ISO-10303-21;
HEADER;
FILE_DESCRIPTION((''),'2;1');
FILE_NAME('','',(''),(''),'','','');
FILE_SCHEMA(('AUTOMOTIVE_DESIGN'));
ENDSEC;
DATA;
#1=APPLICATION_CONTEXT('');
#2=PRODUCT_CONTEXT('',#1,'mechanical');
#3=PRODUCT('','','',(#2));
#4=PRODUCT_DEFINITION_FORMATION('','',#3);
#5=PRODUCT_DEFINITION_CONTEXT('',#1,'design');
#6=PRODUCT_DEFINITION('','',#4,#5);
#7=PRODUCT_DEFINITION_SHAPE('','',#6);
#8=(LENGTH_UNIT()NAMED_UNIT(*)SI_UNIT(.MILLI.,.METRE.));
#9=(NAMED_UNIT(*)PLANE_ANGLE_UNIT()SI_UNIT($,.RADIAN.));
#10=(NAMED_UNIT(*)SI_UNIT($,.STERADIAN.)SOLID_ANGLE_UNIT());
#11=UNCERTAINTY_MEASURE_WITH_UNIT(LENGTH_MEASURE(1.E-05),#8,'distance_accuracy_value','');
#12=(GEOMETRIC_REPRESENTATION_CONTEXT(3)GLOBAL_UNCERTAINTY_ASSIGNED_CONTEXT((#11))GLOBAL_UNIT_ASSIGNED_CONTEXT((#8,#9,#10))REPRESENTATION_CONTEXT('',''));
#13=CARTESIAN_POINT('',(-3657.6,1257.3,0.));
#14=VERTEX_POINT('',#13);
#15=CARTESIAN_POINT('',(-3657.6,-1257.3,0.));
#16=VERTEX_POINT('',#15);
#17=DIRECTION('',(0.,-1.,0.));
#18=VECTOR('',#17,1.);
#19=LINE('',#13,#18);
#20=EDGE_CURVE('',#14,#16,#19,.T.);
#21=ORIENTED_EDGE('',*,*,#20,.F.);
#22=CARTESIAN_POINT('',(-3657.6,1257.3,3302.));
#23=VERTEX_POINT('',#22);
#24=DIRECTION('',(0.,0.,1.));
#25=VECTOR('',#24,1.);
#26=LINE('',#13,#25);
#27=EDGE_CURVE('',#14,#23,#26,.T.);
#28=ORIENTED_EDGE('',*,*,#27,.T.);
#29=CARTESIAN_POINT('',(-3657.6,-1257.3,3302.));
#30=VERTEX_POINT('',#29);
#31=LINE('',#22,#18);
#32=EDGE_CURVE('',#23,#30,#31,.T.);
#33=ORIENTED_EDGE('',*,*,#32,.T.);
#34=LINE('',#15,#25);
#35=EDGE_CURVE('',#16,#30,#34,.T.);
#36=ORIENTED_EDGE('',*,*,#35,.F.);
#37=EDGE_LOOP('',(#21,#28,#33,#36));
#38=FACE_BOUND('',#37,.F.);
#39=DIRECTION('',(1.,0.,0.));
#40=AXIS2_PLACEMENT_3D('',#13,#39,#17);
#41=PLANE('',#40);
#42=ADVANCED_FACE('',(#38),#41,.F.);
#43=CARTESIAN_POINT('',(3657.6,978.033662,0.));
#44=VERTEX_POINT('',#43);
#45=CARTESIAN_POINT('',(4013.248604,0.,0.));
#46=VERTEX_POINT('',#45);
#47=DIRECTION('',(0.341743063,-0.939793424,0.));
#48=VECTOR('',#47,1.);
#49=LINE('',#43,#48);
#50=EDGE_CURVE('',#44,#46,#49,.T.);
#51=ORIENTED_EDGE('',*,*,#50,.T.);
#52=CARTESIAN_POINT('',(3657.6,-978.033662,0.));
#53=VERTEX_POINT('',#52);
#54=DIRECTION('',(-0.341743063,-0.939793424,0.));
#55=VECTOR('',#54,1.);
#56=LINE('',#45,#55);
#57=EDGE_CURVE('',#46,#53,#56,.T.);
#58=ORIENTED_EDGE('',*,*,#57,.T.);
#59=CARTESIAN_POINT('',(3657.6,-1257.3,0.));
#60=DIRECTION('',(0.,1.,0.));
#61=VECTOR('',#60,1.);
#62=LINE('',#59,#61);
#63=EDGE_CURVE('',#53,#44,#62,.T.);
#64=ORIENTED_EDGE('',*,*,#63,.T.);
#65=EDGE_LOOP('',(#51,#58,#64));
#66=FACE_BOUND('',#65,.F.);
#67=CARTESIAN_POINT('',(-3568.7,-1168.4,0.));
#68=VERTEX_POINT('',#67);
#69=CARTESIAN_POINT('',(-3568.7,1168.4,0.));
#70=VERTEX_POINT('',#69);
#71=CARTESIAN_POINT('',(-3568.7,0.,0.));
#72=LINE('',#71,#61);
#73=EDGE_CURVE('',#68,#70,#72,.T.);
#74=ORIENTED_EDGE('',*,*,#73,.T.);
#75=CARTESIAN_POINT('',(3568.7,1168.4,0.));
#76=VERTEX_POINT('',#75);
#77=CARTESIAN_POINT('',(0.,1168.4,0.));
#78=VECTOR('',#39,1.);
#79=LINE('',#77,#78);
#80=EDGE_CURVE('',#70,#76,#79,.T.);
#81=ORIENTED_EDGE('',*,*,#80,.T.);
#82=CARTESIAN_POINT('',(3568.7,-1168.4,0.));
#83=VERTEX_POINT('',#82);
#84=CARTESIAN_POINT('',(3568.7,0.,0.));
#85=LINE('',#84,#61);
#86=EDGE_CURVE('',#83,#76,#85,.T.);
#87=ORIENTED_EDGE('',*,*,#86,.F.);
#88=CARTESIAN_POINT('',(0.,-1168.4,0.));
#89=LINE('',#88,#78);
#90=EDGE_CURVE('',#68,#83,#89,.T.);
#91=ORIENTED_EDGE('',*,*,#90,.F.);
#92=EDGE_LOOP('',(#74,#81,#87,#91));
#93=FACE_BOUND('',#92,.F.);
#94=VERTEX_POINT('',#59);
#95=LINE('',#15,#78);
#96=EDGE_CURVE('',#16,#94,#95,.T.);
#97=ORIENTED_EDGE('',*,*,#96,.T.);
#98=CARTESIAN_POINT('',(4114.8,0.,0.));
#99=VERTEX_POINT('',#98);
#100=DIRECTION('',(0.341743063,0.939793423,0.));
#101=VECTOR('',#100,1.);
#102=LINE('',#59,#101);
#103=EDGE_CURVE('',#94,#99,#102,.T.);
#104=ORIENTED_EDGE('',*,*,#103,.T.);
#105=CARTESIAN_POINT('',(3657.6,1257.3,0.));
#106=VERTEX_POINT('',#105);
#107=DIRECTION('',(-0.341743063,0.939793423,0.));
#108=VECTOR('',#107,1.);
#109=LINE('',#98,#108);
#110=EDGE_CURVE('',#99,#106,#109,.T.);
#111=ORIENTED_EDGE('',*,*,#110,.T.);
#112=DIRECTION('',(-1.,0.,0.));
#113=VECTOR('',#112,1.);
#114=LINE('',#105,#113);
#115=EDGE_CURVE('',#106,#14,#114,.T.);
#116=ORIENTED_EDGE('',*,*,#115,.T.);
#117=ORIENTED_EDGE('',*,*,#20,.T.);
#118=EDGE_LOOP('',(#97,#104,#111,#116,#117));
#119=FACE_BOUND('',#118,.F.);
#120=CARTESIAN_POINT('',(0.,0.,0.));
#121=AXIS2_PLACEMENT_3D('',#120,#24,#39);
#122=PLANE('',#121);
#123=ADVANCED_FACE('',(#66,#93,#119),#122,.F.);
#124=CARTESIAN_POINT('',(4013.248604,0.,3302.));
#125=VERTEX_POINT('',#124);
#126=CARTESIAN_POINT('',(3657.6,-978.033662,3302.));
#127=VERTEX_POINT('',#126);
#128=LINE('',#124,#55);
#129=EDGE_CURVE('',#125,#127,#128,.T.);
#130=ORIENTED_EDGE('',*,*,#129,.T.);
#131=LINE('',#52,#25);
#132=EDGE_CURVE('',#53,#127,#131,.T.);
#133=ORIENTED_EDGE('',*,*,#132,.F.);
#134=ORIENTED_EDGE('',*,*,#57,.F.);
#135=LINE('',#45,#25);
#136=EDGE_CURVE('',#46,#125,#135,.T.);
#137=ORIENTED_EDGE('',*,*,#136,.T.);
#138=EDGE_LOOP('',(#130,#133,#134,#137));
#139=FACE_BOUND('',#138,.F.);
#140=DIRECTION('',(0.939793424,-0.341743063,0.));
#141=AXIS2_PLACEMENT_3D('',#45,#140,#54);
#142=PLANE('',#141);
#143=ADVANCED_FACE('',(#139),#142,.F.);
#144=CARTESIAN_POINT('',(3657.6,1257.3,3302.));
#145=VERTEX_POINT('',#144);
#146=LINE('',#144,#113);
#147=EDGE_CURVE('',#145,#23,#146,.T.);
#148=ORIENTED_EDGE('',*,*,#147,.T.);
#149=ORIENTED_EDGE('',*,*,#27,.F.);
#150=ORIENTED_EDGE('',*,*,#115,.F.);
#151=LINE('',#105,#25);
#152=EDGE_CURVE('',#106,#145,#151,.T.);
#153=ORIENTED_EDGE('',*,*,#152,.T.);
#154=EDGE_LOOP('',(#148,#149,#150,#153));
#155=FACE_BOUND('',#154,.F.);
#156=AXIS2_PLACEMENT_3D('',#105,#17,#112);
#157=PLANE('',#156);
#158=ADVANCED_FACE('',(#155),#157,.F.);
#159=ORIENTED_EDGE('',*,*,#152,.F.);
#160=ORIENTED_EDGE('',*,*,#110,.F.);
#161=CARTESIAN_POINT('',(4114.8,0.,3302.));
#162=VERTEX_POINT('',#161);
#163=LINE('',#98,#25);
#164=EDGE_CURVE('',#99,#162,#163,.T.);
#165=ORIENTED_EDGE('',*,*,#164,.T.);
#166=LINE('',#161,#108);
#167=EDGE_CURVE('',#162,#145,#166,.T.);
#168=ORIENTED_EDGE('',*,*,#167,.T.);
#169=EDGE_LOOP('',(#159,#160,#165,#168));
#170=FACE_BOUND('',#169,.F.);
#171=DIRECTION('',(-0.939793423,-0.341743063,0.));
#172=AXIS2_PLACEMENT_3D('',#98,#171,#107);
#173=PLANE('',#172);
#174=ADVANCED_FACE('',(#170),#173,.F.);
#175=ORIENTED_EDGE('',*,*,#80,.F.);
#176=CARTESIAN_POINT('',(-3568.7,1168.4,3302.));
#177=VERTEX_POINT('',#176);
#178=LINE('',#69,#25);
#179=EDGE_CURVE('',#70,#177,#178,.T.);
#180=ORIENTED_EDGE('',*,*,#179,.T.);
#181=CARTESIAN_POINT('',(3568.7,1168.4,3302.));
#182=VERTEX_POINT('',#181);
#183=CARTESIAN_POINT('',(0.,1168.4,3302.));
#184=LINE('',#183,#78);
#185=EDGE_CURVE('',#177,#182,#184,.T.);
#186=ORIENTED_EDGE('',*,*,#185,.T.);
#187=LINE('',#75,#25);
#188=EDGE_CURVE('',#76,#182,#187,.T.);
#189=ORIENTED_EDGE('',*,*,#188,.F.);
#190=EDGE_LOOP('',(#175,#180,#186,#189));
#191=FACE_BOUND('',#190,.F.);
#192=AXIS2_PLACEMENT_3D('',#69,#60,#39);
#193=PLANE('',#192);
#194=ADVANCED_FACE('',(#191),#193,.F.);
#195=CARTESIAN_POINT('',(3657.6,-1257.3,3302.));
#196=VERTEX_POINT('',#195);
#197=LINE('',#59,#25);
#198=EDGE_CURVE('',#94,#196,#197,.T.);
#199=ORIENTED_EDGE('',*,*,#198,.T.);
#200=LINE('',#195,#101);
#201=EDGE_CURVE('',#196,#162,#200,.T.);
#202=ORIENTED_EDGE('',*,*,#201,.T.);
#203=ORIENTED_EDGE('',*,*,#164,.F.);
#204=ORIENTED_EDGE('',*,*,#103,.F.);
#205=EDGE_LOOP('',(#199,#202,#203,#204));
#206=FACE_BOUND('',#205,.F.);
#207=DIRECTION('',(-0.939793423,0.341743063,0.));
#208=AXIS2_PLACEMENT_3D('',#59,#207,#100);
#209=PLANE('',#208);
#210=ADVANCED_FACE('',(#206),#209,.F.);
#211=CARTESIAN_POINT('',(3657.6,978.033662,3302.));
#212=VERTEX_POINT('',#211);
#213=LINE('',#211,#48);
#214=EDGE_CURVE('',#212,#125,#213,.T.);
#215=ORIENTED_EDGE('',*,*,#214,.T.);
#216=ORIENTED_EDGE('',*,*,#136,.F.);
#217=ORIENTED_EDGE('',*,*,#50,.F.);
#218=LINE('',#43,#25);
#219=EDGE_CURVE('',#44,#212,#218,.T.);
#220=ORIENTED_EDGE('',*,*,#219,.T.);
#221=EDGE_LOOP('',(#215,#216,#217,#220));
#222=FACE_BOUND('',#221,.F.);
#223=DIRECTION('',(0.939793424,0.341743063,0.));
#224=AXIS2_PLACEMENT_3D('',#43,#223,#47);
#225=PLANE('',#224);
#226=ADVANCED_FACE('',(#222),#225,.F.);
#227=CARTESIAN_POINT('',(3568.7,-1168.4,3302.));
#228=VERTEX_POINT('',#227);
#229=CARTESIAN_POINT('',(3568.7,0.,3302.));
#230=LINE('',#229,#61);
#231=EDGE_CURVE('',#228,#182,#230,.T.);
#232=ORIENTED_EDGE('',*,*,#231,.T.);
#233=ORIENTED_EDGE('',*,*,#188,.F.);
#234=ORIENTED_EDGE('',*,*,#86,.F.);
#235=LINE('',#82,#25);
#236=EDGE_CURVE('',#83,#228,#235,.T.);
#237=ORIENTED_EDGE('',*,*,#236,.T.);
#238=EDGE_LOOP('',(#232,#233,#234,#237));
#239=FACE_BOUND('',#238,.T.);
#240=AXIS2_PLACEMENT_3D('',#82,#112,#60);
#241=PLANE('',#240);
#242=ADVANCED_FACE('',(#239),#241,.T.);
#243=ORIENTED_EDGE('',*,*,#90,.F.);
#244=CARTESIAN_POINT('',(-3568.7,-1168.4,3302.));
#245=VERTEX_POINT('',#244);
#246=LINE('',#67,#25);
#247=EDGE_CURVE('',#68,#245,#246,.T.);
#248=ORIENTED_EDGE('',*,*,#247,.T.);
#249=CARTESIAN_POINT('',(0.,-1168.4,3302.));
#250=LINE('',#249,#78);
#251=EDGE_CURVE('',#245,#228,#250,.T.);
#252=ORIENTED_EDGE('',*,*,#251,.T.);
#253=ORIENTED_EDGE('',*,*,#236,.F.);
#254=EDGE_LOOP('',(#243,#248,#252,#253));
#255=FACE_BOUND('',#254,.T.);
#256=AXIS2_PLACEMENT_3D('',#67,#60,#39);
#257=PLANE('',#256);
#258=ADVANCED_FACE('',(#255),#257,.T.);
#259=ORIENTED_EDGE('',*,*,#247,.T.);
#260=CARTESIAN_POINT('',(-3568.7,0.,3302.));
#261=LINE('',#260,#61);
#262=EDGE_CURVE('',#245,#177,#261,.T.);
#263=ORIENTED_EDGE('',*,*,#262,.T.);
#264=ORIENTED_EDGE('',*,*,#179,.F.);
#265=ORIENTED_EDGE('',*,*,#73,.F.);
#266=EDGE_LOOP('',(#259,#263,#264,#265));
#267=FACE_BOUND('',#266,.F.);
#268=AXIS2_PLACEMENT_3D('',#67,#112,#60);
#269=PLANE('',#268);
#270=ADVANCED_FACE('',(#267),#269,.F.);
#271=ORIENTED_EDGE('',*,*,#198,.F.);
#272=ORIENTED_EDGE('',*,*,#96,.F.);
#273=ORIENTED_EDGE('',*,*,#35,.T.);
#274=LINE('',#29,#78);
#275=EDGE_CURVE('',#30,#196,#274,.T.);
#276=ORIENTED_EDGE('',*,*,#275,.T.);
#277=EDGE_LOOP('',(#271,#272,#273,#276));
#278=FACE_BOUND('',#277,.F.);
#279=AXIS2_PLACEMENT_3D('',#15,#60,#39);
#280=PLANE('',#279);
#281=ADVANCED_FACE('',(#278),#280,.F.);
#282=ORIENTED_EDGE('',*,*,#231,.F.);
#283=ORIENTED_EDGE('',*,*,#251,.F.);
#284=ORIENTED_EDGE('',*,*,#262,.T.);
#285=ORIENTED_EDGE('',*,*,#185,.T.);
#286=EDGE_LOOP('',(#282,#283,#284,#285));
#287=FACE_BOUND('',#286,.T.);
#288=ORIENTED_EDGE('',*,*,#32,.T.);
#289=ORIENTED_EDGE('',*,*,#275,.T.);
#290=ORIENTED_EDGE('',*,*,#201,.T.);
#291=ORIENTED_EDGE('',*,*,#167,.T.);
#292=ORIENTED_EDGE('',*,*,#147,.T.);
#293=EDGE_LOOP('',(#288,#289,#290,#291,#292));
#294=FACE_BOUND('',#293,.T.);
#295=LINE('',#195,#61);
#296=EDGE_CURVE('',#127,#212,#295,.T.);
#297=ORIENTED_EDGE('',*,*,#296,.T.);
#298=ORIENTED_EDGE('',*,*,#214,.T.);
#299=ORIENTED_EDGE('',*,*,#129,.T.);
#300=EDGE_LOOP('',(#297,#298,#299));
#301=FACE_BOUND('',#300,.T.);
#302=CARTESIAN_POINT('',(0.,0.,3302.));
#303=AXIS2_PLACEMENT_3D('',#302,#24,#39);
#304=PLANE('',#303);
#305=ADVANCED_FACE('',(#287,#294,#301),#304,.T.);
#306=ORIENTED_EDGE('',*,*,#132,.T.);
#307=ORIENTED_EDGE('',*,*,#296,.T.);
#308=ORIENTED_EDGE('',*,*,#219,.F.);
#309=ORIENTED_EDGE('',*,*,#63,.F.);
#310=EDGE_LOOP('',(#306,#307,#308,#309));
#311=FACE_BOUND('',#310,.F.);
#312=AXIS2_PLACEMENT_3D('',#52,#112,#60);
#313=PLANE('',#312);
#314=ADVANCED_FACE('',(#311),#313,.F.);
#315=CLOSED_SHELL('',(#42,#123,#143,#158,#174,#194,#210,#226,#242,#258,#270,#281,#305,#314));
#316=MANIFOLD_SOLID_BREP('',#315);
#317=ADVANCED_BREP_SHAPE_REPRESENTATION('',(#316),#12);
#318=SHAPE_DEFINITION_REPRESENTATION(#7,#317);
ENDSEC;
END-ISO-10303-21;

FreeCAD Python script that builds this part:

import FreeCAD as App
import Part
import Sketcher

V = App.Vector
Q = App.Units.Quantity

doc = App.newDocument("Part")
body = doc.addObject("PartDesign::Body", "Body")

# Sketch on XY plane
sketch1 = body.newObject("Sketcher::SketchObject", "Sketch")
sketch1.AttachmentSupport = (doc.getObject("XY_Plane"), [""])
sketch1.MapMode = "FlatFace"
sketch1.addGeometry(Part.LineSegment(V(3657.6, 1257.3, 0), V(-3657.6, 1257.3, 0)), False)
sketch1.addGeometry(Part.LineSegment(V(-3657.6, 1257.3, 0), V(-3657.6, -1257.3, 0)), False)
sketch1.addGeometry(Part.LineSegment(V(-3657.6, -1257.3, 0), V(3657.6, -1257.3, 0)), False)
sketch1.addGeometry(Part.LineSegment(V(3657.6, -1257.3, 0), V(4114.8, 0, 0)), False)
sketch1.addGeometry(Part.LineSegment(V(4114.8, 0, 0), V(3657.6, 1257.3, 0)), False)
sketch1.addGeometry(Part.LineSegment(V(3657.6, -978.033662, 0), V(3657.6, 978.033662, 0)), False)
sketch1.addGeometry(Part.LineSegment(V(3657.6, 978.033662, 0), V(4013.248604, 0, 0)), False)
sketch1.addGeometry(Part.LineSegment(V(4013.248604, 0, 0), V(3657.6, -978.033662, 0)), False)
sketch1.addGeometry(Part.LineSegment(V(3568.7, -1168.4, 0), V(-3568.7, -1168.4, 0)), False)
sketch1.addGeometry(Part.LineSegment(V(-3568.7, -1168.4, 0), V(-3568.7, 1168.4, 0)), False)
sketch1.addGeometry(Part.LineSegment(V(-3568.7, 1168.4, 0), V(3568.7, 1168.4, 0)), False)
sketch1.addGeometry(Part.LineSegment(V(3568.7, 1168.4, 0), V(3568.7, -1168.4, 0)), False)
sketch1.addConstraint(Sketcher.Constraint("Coincident", 0, 2, 1, 1))
sketch1.addConstraint(Sketcher.Constraint("Coincident", 1, 2, 2, 1))
sketch1.addConstraint(Sketcher.Constraint("Coincident", 2, 2, 3, 1))
sketch1.addConstraint(Sketcher.Constraint("Coincident", 3, 2, 4, 1))
sketch1.addConstraint(Sketcher.Constraint("Coincident", 4, 2, 0, 1))
sketch1.addConstraint(Sketcher.Constraint("Coincident", 5, 2, 6, 1))
sketch1.addConstraint(Sketcher.Constraint("Coincident", 6, 2, 7, 1))
sketch1.addConstraint(Sketcher.Constraint("Coincident", 7, 2, 5, 1))
sketch1.addConstraint(Sketcher.Constraint("Coincident", 8, 2, 9, 1))
sketch1.addConstraint(Sketcher.Constraint("Coincident", 9, 2, 10, 1))
sketch1.addConstraint(Sketcher.Constraint("Coincident", 10, 2, 11, 1))
sketch1.addConstraint(Sketcher.Constraint("Coincident", 11, 2, 8, 1))
sketch1.addConstraint(Sketcher.Constraint("Horizontal", 0))
sketch1.addConstraint(Sketcher.Constraint("Vertical", 1))
sketch1.addConstraint(Sketcher.Constraint("Horizontal", 2))
sketch1.addConstraint(Sketcher.Constraint("Vertical", 5))
sketch1.addConstraint(Sketcher.Constraint("Horizontal", 8))
sketch1.addConstraint(Sketcher.Constraint("Vertical", 9))
sketch1.addConstraint(Sketcher.Constraint("Horizontal", 10))
sketch1.addConstraint(Sketcher.Constraint("Vertical", 11))
sketch1.addConstraint(Sketcher.Constraint("Symmetric", 0, 2, 2, 2, -1, 1))
sketch1.addConstraint(Sketcher.Constraint("Symmetric", 8, 2, 10, 2, -1, 1))
sketch1.addConstraint(Sketcher.Constraint("PointOnObject", 3, 2, -1))
sketch1.addConstraint(Sketcher.Constraint("PointOnObject", 6, 2, -1))
sketch1.addConstraint(Sketcher.Constraint("Parallel", 4, 6))
sketch1.addConstraint(Sketcher.Constraint("Parallel", 3, 7))
sketch1.addConstraint(Sketcher.Constraint("Vertical", 2, 2, 4, 2))
sketch1.addConstraint(Sketcher.Constraint("Vertical", 4, 2, 5, 2))
sketch1.addConstraint(Sketcher.Constraint("DistanceX", 0, 2, 0, 1, Q("288 in")))
sketch1.addConstraint(Sketcher.Constraint("DistanceX", 8, 2, 8, 1, Q("281 in")))
sketch1.addConstraint(Sketcher.Constraint("DistanceY", 1, 2, 1, 1, Q("99 in")))
sketch1.addConstraint(Sketcher.Constraint("DistanceY", 9, 1, 9, 2, Q("92 in")))
sketch1.addConstraint(Sketcher.Constraint("DistanceX", -1, 1, 3, 2, Q("162 in")))
sketch1.addConstraint(Sketcher.Constraint("DistanceY", 5, 1, 5, 2, 1956.067324))
pad1 = body.newObject("PartDesign::Pad", "Pad")
pad1.Profile = sketch1
pad1.Length = Q("130 in")

doc.recompute()
